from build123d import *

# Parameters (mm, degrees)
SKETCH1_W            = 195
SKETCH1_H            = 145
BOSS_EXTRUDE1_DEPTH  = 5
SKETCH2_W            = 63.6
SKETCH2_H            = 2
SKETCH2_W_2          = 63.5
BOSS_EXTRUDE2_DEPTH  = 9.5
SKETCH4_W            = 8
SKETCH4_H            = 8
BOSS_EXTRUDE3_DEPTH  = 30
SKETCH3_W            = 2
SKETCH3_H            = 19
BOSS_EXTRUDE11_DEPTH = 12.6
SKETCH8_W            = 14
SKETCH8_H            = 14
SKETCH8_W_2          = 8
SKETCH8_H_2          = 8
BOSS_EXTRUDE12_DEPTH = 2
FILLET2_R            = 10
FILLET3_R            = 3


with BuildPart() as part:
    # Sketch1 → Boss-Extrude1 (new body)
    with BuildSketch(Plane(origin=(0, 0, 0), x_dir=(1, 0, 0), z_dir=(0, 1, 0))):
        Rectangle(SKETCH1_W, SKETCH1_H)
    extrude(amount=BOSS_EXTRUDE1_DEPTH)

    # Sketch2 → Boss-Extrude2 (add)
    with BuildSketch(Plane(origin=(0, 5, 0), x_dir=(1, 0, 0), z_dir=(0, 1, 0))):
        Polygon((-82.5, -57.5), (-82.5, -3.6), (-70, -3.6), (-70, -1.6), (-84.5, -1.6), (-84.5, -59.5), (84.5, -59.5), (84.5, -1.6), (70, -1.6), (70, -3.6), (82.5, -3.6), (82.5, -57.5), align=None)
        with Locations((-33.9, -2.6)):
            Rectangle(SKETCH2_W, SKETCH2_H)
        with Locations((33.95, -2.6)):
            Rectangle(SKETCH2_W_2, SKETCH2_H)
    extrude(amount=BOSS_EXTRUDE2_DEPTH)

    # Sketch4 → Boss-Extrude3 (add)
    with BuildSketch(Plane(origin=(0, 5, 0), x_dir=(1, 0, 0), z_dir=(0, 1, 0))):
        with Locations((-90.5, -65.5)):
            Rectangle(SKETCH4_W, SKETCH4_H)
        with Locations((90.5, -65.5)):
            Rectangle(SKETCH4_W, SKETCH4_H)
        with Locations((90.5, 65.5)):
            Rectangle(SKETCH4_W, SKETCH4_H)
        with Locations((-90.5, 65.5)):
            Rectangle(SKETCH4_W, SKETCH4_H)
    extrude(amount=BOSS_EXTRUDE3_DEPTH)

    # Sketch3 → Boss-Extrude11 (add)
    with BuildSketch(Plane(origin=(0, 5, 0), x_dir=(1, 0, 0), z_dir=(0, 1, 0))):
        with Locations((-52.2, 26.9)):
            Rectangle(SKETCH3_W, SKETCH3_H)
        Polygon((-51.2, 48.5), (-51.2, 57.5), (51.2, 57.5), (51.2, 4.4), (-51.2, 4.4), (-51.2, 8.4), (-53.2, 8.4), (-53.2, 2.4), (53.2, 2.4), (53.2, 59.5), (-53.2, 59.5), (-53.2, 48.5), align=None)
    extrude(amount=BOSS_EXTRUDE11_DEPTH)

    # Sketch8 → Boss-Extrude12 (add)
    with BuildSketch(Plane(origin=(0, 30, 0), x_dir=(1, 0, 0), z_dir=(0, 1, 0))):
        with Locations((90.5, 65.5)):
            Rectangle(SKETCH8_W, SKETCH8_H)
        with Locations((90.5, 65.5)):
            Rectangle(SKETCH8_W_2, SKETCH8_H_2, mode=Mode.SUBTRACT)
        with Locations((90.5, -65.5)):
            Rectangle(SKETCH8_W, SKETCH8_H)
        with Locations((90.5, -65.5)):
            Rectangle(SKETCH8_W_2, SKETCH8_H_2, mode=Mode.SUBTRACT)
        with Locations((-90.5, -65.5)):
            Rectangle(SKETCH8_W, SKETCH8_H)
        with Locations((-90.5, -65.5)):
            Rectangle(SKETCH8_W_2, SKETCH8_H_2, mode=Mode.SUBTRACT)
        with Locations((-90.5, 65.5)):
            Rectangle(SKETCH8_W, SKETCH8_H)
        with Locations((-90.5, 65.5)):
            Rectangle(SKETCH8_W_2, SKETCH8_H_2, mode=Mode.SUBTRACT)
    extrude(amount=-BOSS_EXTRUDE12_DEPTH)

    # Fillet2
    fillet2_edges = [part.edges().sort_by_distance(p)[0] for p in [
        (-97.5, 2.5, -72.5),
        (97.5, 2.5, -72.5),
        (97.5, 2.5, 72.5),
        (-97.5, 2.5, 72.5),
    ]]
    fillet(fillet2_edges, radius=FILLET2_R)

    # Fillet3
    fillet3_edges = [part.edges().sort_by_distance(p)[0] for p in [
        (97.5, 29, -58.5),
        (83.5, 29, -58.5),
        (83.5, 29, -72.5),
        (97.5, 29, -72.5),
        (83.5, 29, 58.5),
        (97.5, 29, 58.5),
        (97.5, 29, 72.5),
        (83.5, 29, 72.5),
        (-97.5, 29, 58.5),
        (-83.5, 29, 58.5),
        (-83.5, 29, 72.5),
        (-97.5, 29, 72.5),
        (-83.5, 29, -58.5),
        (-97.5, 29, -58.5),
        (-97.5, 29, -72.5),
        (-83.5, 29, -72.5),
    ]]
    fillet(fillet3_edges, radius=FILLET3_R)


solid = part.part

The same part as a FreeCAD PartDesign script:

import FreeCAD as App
import Part
import Sketcher
from FreeCAD import Vector
Q = App.Units.Quantity


def edges_at(feature, points):
    """Names of the edges that pass closest to the given points."""
    edges = feature.Shape.Edges
    near = lambda p: min(range(len(edges)), key=lambda i: edges[i].distToShape(Part.Vertex(*p))[0])
    return sorted({f"Edge{near(p) + 1}" for p in points})

doc = App.newDocument("Part")
body = doc.addObject("PartDesign::Body", "Body")

sketch1 = body.newObject("Sketcher::SketchObject", "Sketch")
sketch1.AttachmentSupport = (doc.getObject("XZ_Plane"), [""])
sketch1.MapMode = "FlatFace"
sketch1.addGeometry(Part.LineSegment(Vector(-98, -72, 0), Vector(-98, 72, 0)), False)
sketch1.addGeometry(Part.LineSegment(Vector(-98, 72, 0), Vector(98, 72, 0)), False)
sketch1.addGeometry(Part.LineSegment(Vector(98, 72, 0), Vector(98, -72, 0)), False)
sketch1.addGeometry(Part.LineSegment(Vector(98, -72, 0), Vector(-98, -72, 0)), False)
sketch1.addConstraint(Sketcher.Constraint("Coincident", 0, 2, 1, 1))
sketch1.addConstraint(Sketcher.Constraint("Coincident", 1, 2, 2, 1))
sketch1.addConstraint(Sketcher.Constraint("Coincident", 2, 2, 3, 1))
sketch1.addConstraint(Sketcher.Constraint("Coincident", 3, 2, 0, 1))
sketch1.addConstraint(Sketcher.Constraint("Vertical", 0))
sketch1.addConstraint(Sketcher.Constraint("Horizontal", 1))
sketch1.addConstraint(Sketcher.Constraint("Vertical", 2))
sketch1.addConstraint(Sketcher.Constraint("Horizontal", 3))
sketch1.addConstraint(Sketcher.Constraint("Symmetric", 0, 2, 2, 2, -1, 1))
sketch1.addConstraint(Sketcher.Constraint("DistanceX", 1, 1, 1, 2, Q("195 mm")))
sketch1.addConstraint(Sketcher.Constraint("DistanceY", 0, 1, 0, 2, Q("145 mm")))
pad1 = body.newObject("PartDesign::Pad", "Pad")
pad1.Profile = sketch1
pad1.Length = 5
pad1.Reversed = True

sketch2 = body.newObject("Sketcher::SketchObject", "Sketch001")
sketch2.AttachmentSupport = (doc.getObject("XZ_Plane"), [""])
sketch2.MapMode = "FlatFace"
sketch2.AttachmentOffset = App.Placement(Vector(0, 0, -5), App.Rotation())
sketch2.addGeometry(Part.LineSegment(Vector(-82.5, 57.5, 0), Vector(-82.5, 3.6, 0)), False)
sketch2.addGeometry(Part.LineSegment(Vector(-82.5, 3.6, 0), Vector(-70, 3.6, 0)), False)
sketch2.addGeometry(Part.LineSegment(Vector(-70, 3.6, 0), Vector(-70, 1.6, 0)), False)
sketch2.addGeometry(Part.LineSegment(Vector(-70, 1.6, 0), Vector(-84.5, 1.6, 0)), False)
sketch2.addGeometry(Part.LineSegment(Vector(-84.5, 1.6, 0), Vector(-84.5, 59.5, 0)), False)
sketch2.addGeometry(Part.LineSegment(Vector(-84.5, 59.5, 0), Vector(84.5, 59.5, 0)), False)
sketch2.addGeometry(Part.LineSegment(Vector(84.5, 59.5, 0), Vector(84.5, 1.6, 0)), False)
sketch2.addGeometry(Part.LineSegment(Vector(84.5, 1.6, 0), Vector(70, 1.6, 0)), False)
sketch2.addGeometry(Part.LineSegment(Vector(70, 1.6, 0), Vector(70, 3.6, 0)), False)
sketch2.addGeometry(Part.LineSegment(Vector(70, 3.6, 0), Vector(82.5, 3.6, 0)), False)
sketch2.addGeometry(Part.LineSegment(Vector(82.5, 3.6, 0), Vector(82.5, 57.5, 0)), False)
sketch2.addGeometry(Part.LineSegment(Vector(82.5, 57.5, 0), Vector(-82.5, 57.5, 0)), False)
sketch2.addGeometry(Part.LineSegment(Vector(-65.7, 1.6, 0), Vector(-65.7, 3.6, 0)), False)
sketch2.addGeometry(Part.LineSegment(Vector(-65.7, 3.6, 0), Vector(-2.1, 3.6, 0)), False)
sketch2.addGeometry(Part.LineSegment(Vector(-2.1, 3.6, 0), Vector(-2.1, 1.6, 0)), False)
sketch2.addGeometry(Part.LineSegment(Vector(-2.1, 1.6, 0), Vector(-65.7, 1.6, 0)), False)
sketch2.addGeometry(Part.LineSegment(Vector(2.2, 1.6, 0), Vector(2.2, 3.6, 0)), False)
sketch2.addGeometry(Part.LineSegment(Vector(2.2, 3.6, 0), Vector(65.7, 3.6, 0)), False)
sketch2.addGeometry(Part.LineSegment(Vector(65.7, 3.6, 0), Vector(65.7, 1.6, 0)), False)
sketch2.addGeometry(Part.LineSegment(Vector(65.7, 1.6, 0), Vector(2.2, 1.6, 0)), False)
sketch2.addConstraint(Sketcher.Constraint("Coincident", 0, 2, 1, 1))
sketch2.addConstraint(Sketcher.Constraint("Coincident", 1, 2, 2, 1))
sketch2.addConstraint(Sketcher.Constraint("Coincident", 2, 2, 3, 1))
sketch2.addConstraint(Sketcher.Constraint("Coincident", 3, 2, 4, 1))
sketch2.addConstraint(Sketcher.Constraint("Coincident", 4, 2, 5, 1))
sketch2.addConstraint(Sketcher.Constraint("Coincident", 5, 2, 6, 1))
sketch2.addConstraint(Sketcher.Constraint("Coincident", 6, 2, 7, 1))
sketch2.addConstraint(Sketcher.Constraint("Coincident", 7, 2, 8, 1))
sketch2.addConstraint(Sketcher.Constraint("Coincident", 8, 2, 9, 1))
sketch2.addConstraint(Sketcher.Constraint("Coincident", 9, 2, 10, 1))
sketch2.addConstraint(Sketcher.Constraint("Coincident", 10, 2, 11, 1))
sketch2.addConstraint(Sketcher.Constraint("Coincident", 11, 2, 0, 1))
sketch2.addConstraint(Sketcher.Constraint("Coincident", 12, 2, 13, 1))
sketch2.addConstraint(Sketcher.Constraint("Coincident", 13, 2, 14, 1))
sketch2.addConstraint(Sketcher.Constraint("Coincident", 14, 2, 15, 1))
sketch2.addConstraint(Sketcher.Constraint("Coincident", 15, 2, 12, 1))
sketch2.addConstraint(Sketcher.Constraint("Coincident", 16, 2, 17, 1))
sketch2.addConstraint(Sketcher.Constraint("Coincident", 17, 2, 18, 1))
sketch2.addConstraint(Sketcher.Constraint("Coincident", 18, 2, 19, 1))
sketch2.addConstraint(Sketcher.Constraint("Coincident", 19, 2, 16, 1))
sketch2.addConstraint(Sketcher.Constraint("Vertical", 0))
sketch2.addConstraint(Sketcher.Constraint("Horizontal", 1))
sketch2.addConstraint(Sketcher.Constraint("Vertical", 2))
sketch2.addConstraint(Sketcher.Constraint("Horizontal", 3))
sketch2.addConstraint(Sketcher.Constraint("Vertical", 4))
sketch2.addConstraint(Sketcher.Constraint("Horizontal", 5))
sketch2.addConstraint(Sketcher.Constraint("Vertical", 6))
sketch2.addConstraint(Sketcher.Constraint("Horizontal", 7))
sketch2.addConstraint(Sketcher.Constraint("Vertical", 8))
sketch2.addConstraint(Sketcher.Constraint("Horizontal", 9))
sketch2.addConstraint(Sketcher.Constraint("Vertical", 10))
sketch2.addConstraint(Sketcher.Constraint("Horizontal", 11))
sketch2.addConstraint(Sketcher.Constraint("Vertical", 12))
sketch2.addConstraint(Sketcher.Constraint("Horizontal", 13))
sketch2.addConstraint(Sketcher.Constraint("Vertical", 14))
sketch2.addConstraint(Sketcher.Constraint("Horizontal", 15))
sketch2.addConstraint(Sketcher.Constraint("Vertical", 16))
sketch2.addConstraint(Sketcher.Constraint("Horizontal", 17))
sketch2.addConstraint(Sketcher.Constraint("Vertical", 18))
sketch2.addConstraint(Sketcher.Constraint("Horizontal", 19))
sketch2.addConstraint(Sketcher.Constraint("Symmetric", 3, 2, 6, 2, -2))
sketch2.addConstraint(Sketcher.Constraint("Symmetric", 1, 2, 8, 2, -2))
sketch2.addConstraint(Sketcher.Constraint("Symmetric", 12, 2, 17, 2, -2))
sketch2.addConstraint(Sketcher.Constraint("Horizontal", 9, 2, 12, 2))
sketch2.addConstraint(Sketcher.Constraint("Horizontal", 7, 2, 14, 2))
sketch2.addConstraint(Sketcher.Constraint("Horizontal", 15, 2, 18, 2))
sketch2.addConstraint(Sketcher.Constraint("Equal", 1, 9))
sketch2.addConstraint(Sketcher.Constraint("DistanceX", 5, 1, 5, 2, Q("169 mm")))
sketch2.addConstraint(Sketcher.Constraint("DistanceX", 11, 2, 11, 1, Q("165 mm")))
sketch2.addConstraint(Sketcher.Constraint("DistanceY", 2, 2, 2, 1, Q("2 mm")))
sketch2.addConstraint(Sketcher.Constraint("DistanceX", 1, 1, 1, 2, Q("12.5 mm")))
sketch2.addConstraint(Sketcher.Constraint("DistanceX", 13, 1, 13, 2, Q("63.6 mm")))
sketch2.addConstraint(Sketcher.Constraint("DistanceX", 17, 1, 17, 2, Q("63.5 mm")))
sketch2.addConstraint(Sketcher.Constraint("DistanceY", 0, 2, 0, 1, Q("53.9 mm")))
sketch2.addConstraint(Sketcher.Constraint("DistanceY", 4, 1, 4, 2, Q("57.9 mm")))
sketch2.addConstraint(Sketcher.Constraint("DistanceY", -1, 1, 0, 2, Q("3.6 mm")))
sketch2.addConstraint(Sketcher.Constraint("DistanceX", 12, 2, -1, 1, Q("65.7 mm")))
pad2 = body.newObject("PartDesign::Pad", "Pad001")
pad2.Profile = sketch2
pad2.Length = 9.5
pad2.Reversed = True

sketch3 = body.newObject("Sketcher::SketchObject", "Sketch002")
sketch3.AttachmentSupport = (doc.getObject("XZ_Plane"), [""])
sketch3.MapMode = "FlatFace"
sketch3.AttachmentOffset = App.Placement(Vector(0, 0, -5), App.Rotation())
sketch3.addGeometry(Part.LineSegment(Vector(-94, 62, 0), Vector(-94, 70, 0)), False)
sketch3.addGeometry(Part.LineSegment(Vector(-94, 70, 0), Vector(-86, 70, 0)), False)
sketch3.addGeometry(Part.LineSegment(Vector(-86, 70, 0), Vector(-86, 62, 0)), False)
sketch3.addGeometry(Part.LineSegment(Vector(-86, 62, 0), Vector(-94, 62, 0)), False)
sketch3.addGeometry(Part.LineSegment(Vector(86, 62, 0), Vector(86, 70, 0)), False)
sketch3.addGeometry(Part.LineSegment(Vector(86, 70, 0), Vector(94, 70, 0)), False)
sketch3.addGeometry(Part.LineSegment(Vector(94, 70, 0), Vector(94, 62, 0)), False)
sketch3.addGeometry(Part.LineSegment(Vector(94, 62, 0), Vector(86, 62, 0)), False)
sketch3.addGeometry(Part.LineSegment(Vector(86, -70, 0), Vector(86, -62, 0)), False)
sketch3.addGeometry(Part.LineSegment(Vector(86, -62, 0), Vector(94, -62, 0)), False)
sketch3.addGeometry(Part.LineSegment(Vector(94, -62, 0), Vector(94, -70, 0)), False)
sketch3.addGeometry(Part.LineSegment(Vector(94, -70, 0), Vector(86, -70, 0)), False)
sketch3.addGeometry(Part.LineSegment(Vector(-94, -70, 0), Vector(-94, -62, 0)), False)
sketch3.addGeometry(Part.LineSegment(Vector(-94, -62, 0), Vector(-86, -62, 0)), False)
sketch3.addGeometry(Part.LineSegment(Vector(-86, -62, 0), Vector(-86, -70, 0)), False)
sketch3.addGeometry(Part.LineSegment(Vector(-86, -70, 0), Vector(-94, -70, 0)), False)
sketch3.addConstraint(Sketcher.Constraint("Coincident", 0, 2, 1, 1))
sketch3.addConstraint(Sketcher.Constraint("Coincident", 1, 2, 2, 1))
sketch3.addConstraint(Sketcher.Constraint("Coincident", 2, 2, 3, 1))
sketch3.addConstraint(Sketcher.Constraint("Coincident", 3, 2, 0, 1))
sketch3.addConstraint(Sketcher.Constraint("Coincident", 4, 2, 5, 1))
sketch3.addConstraint(Sketcher.Constraint("Coincident", 5, 2, 6, 1))
sketch3.addConstraint(Sketcher.Constraint("Coincident", 6, 2, 7, 1))
sketch3.addConstraint(Sketcher.Constraint("Coincident", 7, 2, 4, 1))
sketch3.addConstraint(Sketcher.Constraint("Coincident", 8, 2, 9, 1))
sketch3.addConstraint(Sketcher.Constraint("Coincident", 9, 2, 10, 1))
sketch3.addConstraint(Sketcher.Constraint("Coincident", 10, 2, 11, 1))
sketch3.addConstraint(Sketcher.Constraint("Coincident", 11, 2, 8, 1))
sketch3.addConstraint(Sketcher.Constraint("Coincident", 12, 2, 13, 1))
sketch3.addConstraint(Sketcher.Constraint("Coincident", 13, 2, 14, 1))
sketch3.addConstraint(Sketcher.Constraint("Coincident", 14, 2, 15, 1))
sketch3.addConstraint(Sketcher.Constraint("Coincident", 15, 2, 12, 1))
sketch3.addConstraint(Sketcher.Constraint("Vertical", 0))
sketch3.addConstraint(Sketcher.Constraint("Horizontal", 1))
sketch3.addConstraint(Sketcher.Constraint("Vertical", 2))
sketch3.addConstraint(Sketcher.Constraint("Horizontal", 3))
sketch3.addConstraint(Sketcher.Constraint("Vertical", 4))
sketch3.addConstraint(Sketcher.Constraint("Horizontal", 5))
sketch3.addConstraint(Sketcher.Constraint("Vertical", 6))
sketch3.addConstraint(Sketcher.Constraint("Horizontal", 7))
sketch3.addConstraint(Sketcher.Constraint("Vertical", 8))
sketch3.addConstraint(Sketcher.Constraint("Horizontal", 9))
sketch3.addConstraint(Sketcher.Constraint("Vertical", 10))
sketch3.addConstraint(Sketcher.Constraint("Horizontal", 11))
sketch3.addConstraint(Sketcher.Constraint("Vertical", 12))
sketch3.addConstraint(Sketcher.Constraint("Horizontal", 13))
sketch3.addConstraint(Sketcher.Constraint("Vertical", 14))
sketch3.addConstraint(Sketcher.Constraint("Horizontal", 15))
sketch3.addConstraint(Sketcher.Constraint("Symmetric", 2, 2, 8, 2, -1, 1))
sketch3.addConstraint(Sketcher.Constraint("Symmetric", 0, 2, 10, 2, -1, 1))
sketch3.addConstraint(Sketcher.Constraint("Symmetric", 6, 2, 12, 2, -1, 1))
sketch3.addConstraint(Sketcher.Constraint("Symmetric", 4, 2, 14, 2, -1, 1))
sketch3.addConstraint(Sketcher.Constraint("Symmetric", 1, 2, 4, 2, -2))
sketch3.addConstraint(Sketcher.Constraint("Symmetric", 3, 2, 6, 2, -2))
sketch3.addConstraint(Sketcher.Constraint("Equal", 15, 0))
sketch3.addConstraint(Sketcher.Constraint("DistanceX", 1, 1, 1, 2, Q("8 mm")))
sketch3.addConstraint(Sketcher.Constraint("DistanceX", 1, 2, 4, 2, Q("173 mm")))
sketch3.addConstraint(Sketcher.Constraint("DistanceY", 8, 2, 7, 2, Q("123 mm")))
pad3 = body.newObject("PartDesign::Pad", "Pad002")
pad3.Profile = sketch3
pad3.Length = 30
pad3.Reversed = True

sketch4 = body.newObject("Sketcher::SketchObject", "Sketch003")
sketch4.AttachmentSupport = (doc.getObject("XZ_Plane"), [""])
sketch4.MapMode = "FlatFace"
sketch4.AttachmentOffset = App.Placement(Vector(0, 0, -5), App.Rotation())
sketch4.addGeometry(Part.LineSegment(Vector(-53.2, -36.4, 0), Vector(-53.2, -17.4, 0)), False)
sketch4.addGeometry(Part.LineSegment(Vector(-53.2, -17.4, 0), Vector(-51.2, -17.4, 0)), False)
sketch4.addGeometry(Part.LineSegment(Vector(-51.2, -17.4, 0), Vector(-51.2, -36.4, 0)), False)
sketch4.addGeometry(Part.LineSegment(Vector(-51.2, -36.4, 0), Vector(-53.2, -36.4, 0)), False)
sketch4.addGeometry(Part.LineSegment(Vector(-51.2, -48.5, 0), Vector(-51.2, -57.5, 0)), False)
sketch4.addGeometry(Part.LineSegment(Vector(-51.2, -57.5, 0), Vector(51.2, -57.5, 0)), False)
sketch4.addGeometry(Part.LineSegment(Vector(51.2, -57.5, 0), Vector(51.2, -4.4, 0)), False)
sketch4.addGeometry(Part.LineSegment(Vector(51.2, -4.4, 0), Vector(-51.2, -4.4, 0)), False)
sketch4.addGeometry(Part.LineSegment(Vector(-51.2, -4.4, 0), Vector(-51.2, -8.4, 0)), False)
sketch4.addGeometry(Part.LineSegment(Vector(-51.2, -8.4, 0), Vector(-53.2, -8.4, 0)), False)
sketch4.addGeometry(Part.LineSegment(Vector(-53.2, -8.4, 0), Vector(-53.2, -2.4, 0)), False)
sketch4.addGeometry(Part.LineSegment(Vector(-53.2, -2.4, 0), Vector(53.2, -2.4, 0)), False)
sketch4.addGeometry(Part.LineSegment(Vector(53.2, -2.4, 0), Vector(53.2, -59.5, 0)), False)
sketch4.addGeometry(Part.LineSegment(Vector(53.2, -59.5, 0), Vector(-53.2, -59.5, 0)), False)
sketch4.addGeometry(Part.LineSegment(Vector(-53.2, -59.5, 0), Vector(-53.2, -48.5, 0)), False)
sketch4.addGeometry(Part.LineSegment(Vector(-53.2, -48.5, 0), Vector(-51.2, -48.5, 0)), False)
sketch4.addConstraint(Sketcher.Constraint("Coincident", 0, 2, 1, 1))
sketch4.addConstraint(Sketcher.Constraint("Coincident", 1, 2, 2, 1))
sketch4.addConstraint(Sketcher.Constraint("Coincident", 2, 2, 3, 1))
sketch4.addConstraint(Sketcher.Constraint("Coincident", 3, 2, 0, 1))
sketch4.addConstraint(Sketcher.Constraint("Coincident", 4, 2, 5, 1))
sketch4.addConstraint(Sketcher.Constraint("Coincident", 5, 2, 6, 1))
sketch4.addConstraint(Sketcher.Constraint("Coincident", 6, 2, 7, 1))
sketch4.addConstraint(Sketcher.Constraint("Coincident", 7, 2, 8, 1))
sketch4.addConstraint(Sketcher.Constraint("Coincident", 8, 2, 9, 1))
sketch4.addConstraint(Sketcher.Constraint("Coincident", 9, 2, 10, 1))
sketch4.addConstraint(Sketcher.Constraint("Coincident", 10, 2, 11, 1))
sketch4.addConstraint(Sketcher.Constraint("Coincident", 11, 2, 12, 1))
sketch4.addConstraint(Sketcher.Constraint("Coincident", 12, 2, 13, 1))
sketch4.addConstraint(Sketcher.Constraint("Coincident", 13, 2, 14, 1))
sketch4.addConstraint(Sketcher.Constraint("Coincident", 14, 2, 15, 1))
sketch4.addConstraint(Sketcher.Constraint("Coincident", 15, 2, 4, 1))
sketch4.addConstraint(Sketcher.Constraint("Vertical", 0))
sketch4.addConstraint(Sketcher.Constraint("Horizontal", 1))
sketch4.addConstraint(Sketcher.Constraint("Vertical", 2))
sketch4.addConstraint(Sketcher.Constraint("Horizontal", 3))
sketch4.addConstraint(Sketcher.Constraint("Vertical", 4))
sketch4.addConstraint(Sketcher.Constraint("Horizontal", 5))
sketch4.addConstraint(Sketcher.Constraint("Vertical", 6))
sketch4.addConstraint(Sketcher.Constraint("Horizontal", 7))
sketch4.addConstraint(Sketcher.Constraint("Vertical", 8))
sketch4.addConstraint(Sketcher.Constraint("Horizontal", 9))
sketch4.addConstraint(Sketcher.Constraint("Vertical", 10))
sketch4.addConstraint(Sketcher.Constraint("Horizontal", 11))
sketch4.addConstraint(Sketcher.Constraint("Vertical", 12))
sketch4.addConstraint(Sketcher.Constraint("Horizontal", 13))
sketch4.addConstraint(Sketcher.Constraint("Vertical", 14))
sketch4.addConstraint(Sketcher.Constraint("Horizontal", 15))
sketch4.addConstraint(Sketcher.Constraint("Vertical", 2, 2, 4, 2))
sketch4.addConstraint(Sketcher.Constraint("Vertical", 4, 2, 7, 2))
sketch4.addConstraint(Sketcher.Constraint("Vertical", 3, 2, 9, 2))
sketch4.addConstraint(Sketcher.Constraint("Vertical", 10, 2, 13, 2))
sketch4.addConstraint(Sketcher.Constraint("DistanceX", 1, 1, 1, 2, Q("2 mm")))
sketch4.addConstraint(Sketcher.Constraint("DistanceY", 0, 1, 0, 2, Q("19 mm")))
sketch4.addConstraint(Sketcher.Constraint("DistanceY", 4, 2, 4, 1, Q("9 mm")))
sketch4.addConstraint(Sketcher.Constraint("DistanceY", 8, 2, 8, 1, Q("4 mm")))
sketch4.addConstraint(Sketcher.Constraint("DistanceY", 10, 1, 10, 2, Q("6 mm")))
sketch4.addConstraint(Sketcher.Constraint("DistanceY", 14, 1, 14, 2, Q("11 mm")))
sketch4.addConstraint(Sketcher.Constraint("DistanceX", 5, 1, 5, 2, Q("102.4 mm")))
sketch4.addConstraint(Sketcher.Constraint("DistanceX", 11, 1, 11, 2, Q("106.4 mm")))
sketch4.addConstraint(Sketcher.Constraint("DistanceY", 6, 1, 6, 2, Q("53.1 mm")))
sketch4.addConstraint(Sketcher.Constraint("DistanceY", 1, 2, 6, 2, Q("13 mm")))
sketch4.addConstraint(Sketcher.Constraint("DistanceX", 0, 2, -1, 1, Q("53.2 mm")))
sketch4.addConstraint(Sketcher.Constraint("DistanceY", 0, 2, -1, 1, Q("17.4 mm")))
pad4 = body.newObject("PartDesign::Pad", "Pad003")
pad4.Profile = sketch4
pad4.Length = 12.6
pad4.Reversed = True

sketch5 = body.newObject("Sketcher::SketchObject", "Sketch004")
sketch5.AttachmentSupport = (doc.getObject("XZ_Plane"), [""])
sketch5.MapMode = "FlatFace"
sketch5.AttachmentOffset = App.Placement(Vector(0, 0, -30), App.Rotation())
sketch5.addGeometry(Part.LineSegment(Vector(84, -72, 0), Vector(84, -58, 0)), False)
sketch5.addGeometry(Part.LineSegment(Vector(84, -58, 0), Vector(98, -58, 0)), False)
sketch5.addGeometry(Part.LineSegment(Vector(98, -58, 0), Vector(98, -72, 0)), False)
sketch5.addGeometry(Part.LineSegment(Vector(98, -72, 0), Vector(84, -72, 0)), False)
sketch5.addGeometry(Part.LineSegment(Vector(94, -62, 0), Vector(86, -62, 0)), False)
sketch5.addGeometry(Part.LineSegment(Vector(86, -62, 0), Vector(86, -70, 0)), False)
sketch5.addGeometry(Part.LineSegment(Vector(86, -70, 0), Vector(94, -70, 0)), False)
sketch5.addGeometry(Part.LineSegment(Vector(94, -70, 0), Vector(94, -62, 0)), False)
sketch5.addGeometry(Part.LineSegment(Vector(84, 58, 0), Vector(84, 72, 0)), False)
sketch5.addGeometry(Part.LineSegment(Vector(84, 72, 0), Vector(98, 72, 0)), False)
sketch5.addGeometry(Part.LineSegment(Vector(98, 72, 0), Vector(98, 58, 0)), False)
sketch5.addGeometry(Part.LineSegment(Vector(98, 58, 0), Vector(84, 58, 0)), False)
sketch5.addGeometry(Part.LineSegment(Vector(94, 70, 0), Vector(86, 70, 0)), False)
sketch5.addGeometry(Part.LineSegment(Vector(86, 70, 0), Vector(86, 62, 0)), False)
sketch5.addGeometry(Part.LineSegment(Vector(86, 62, 0), Vector(94, 62, 0)), False)
sketch5.addGeometry(Part.LineSegment(Vector(94, 62, 0), Vector(94, 70, 0)), False)
sketch5.addGeometry(Part.LineSegment(Vector(-98, 58, 0), Vector(-98, 72, 0)), False)
sketch5.addGeometry(Part.LineSegment(Vector(-98, 72, 0), Vector(-84, 72, 0)), False)
sketch5.addGeometry(Part.LineSegment(Vector(-84, 72, 0), Vector(-84, 58, 0)), False)
sketch5.addGeometry(Part.LineSegment(Vector(-84, 58, 0), Vector(-98, 58, 0)), False)
sketch5.addGeometry(Part.LineSegment(Vector(-86, 70, 0), Vector(-94, 70, 0)), False)
sketch5.addGeometry(Part.LineSegment(Vector(-94, 70, 0), Vector(-94, 62, 0)), False)
sketch5.addGeometry(Part.LineSegment(Vector(-94, 62, 0), Vector(-86, 62, 0)), False)
sketch5.addGeometry(Part.LineSegment(Vector(-86, 62, 0), Vector(-86, 70, 0)), False)
sketch5.addGeometry(Part.LineSegment(Vector(-98, -72, 0), Vector(-98, -58, 0)), False)
sketch5.addGeometry(Part.LineSegment(Vector(-98, -58, 0), Vector(-84, -58, 0)), False)
sketch5.addGeometry(Part.LineSegment(Vector(-84, -58, 0), Vector(-84, -72, 0)), False)
sketch5.addGeometry(Part.LineSegment(Vector(-84, -72, 0), Vector(-98, -72, 0)), False)
sketch5.addGeometry(Part.LineSegment(Vector(-86, -62, 0), Vector(-94, -62, 0)), False)
sketch5.addGeometry(Part.LineSegment(Vector(-94, -62, 0), Vector(-94, -70, 0)), False)
sketch5.addGeometry(Part.LineSegment(Vector(-94, -70, 0), Vector(-86, -70, 0)), False)
sketch5.addGeometry(Part.LineSegment(Vector(-86, -70, 0), Vector(-86, -62, 0)), False)
sketch5.addConstraint(Sketcher.Constraint("Coincident", 0, 2, 1, 1))
sketch5.addConstraint(Sketcher.Constraint("Coincident", 1, 2, 2, 1))
sketch5.addConstraint(Sketcher.Constraint("Coincident", 2, 2, 3, 1))
sketch5.addConstraint(Sketcher.Constraint("Coincident", 3, 2, 0, 1))
sketch5.addConstraint(Sketcher.Constraint("Coincident", 4, 2, 5, 1))
sketch5.addConstraint(Sketcher.Constraint("Coincident", 5, 2, 6, 1))
sketch5.addConstraint(Sketcher.Constraint("Coincident", 6, 2, 7, 1))
sketch5.addConstraint(Sketcher.Constraint("Coincident", 7, 2, 4, 1))
sketch5.addConstraint(Sketcher.Constraint("Coincident", 8, 2, 9, 1))
sketch5.addConstraint(Sketcher.Constraint("Coincident", 9, 2, 10, 1))
sketch5.addConstraint(Sketcher.Constraint("Coincident", 10, 2, 11, 1))
sketch5.addConstraint(Sketcher.Constraint("Coincident", 11, 2, 8, 1))
sketch5.addConstraint(Sketcher.Constraint("Coincident", 12, 2, 13, 1))
sketch5.addConstraint(Sketcher.Constraint("Coincident", 13, 2, 14, 1))
sketch5.addConstraint(Sketcher.Constraint("Coincident", 14, 2, 15, 1))
sketch5.addConstraint(Sketcher.Constraint("Coincident", 15, 2, 12, 1))
sketch5.addConstraint(Sketcher.Constraint("Coincident", 16, 2, 17, 1))
sketch5.addConstraint(Sketcher.Constraint("Coincident", 17, 2, 18, 1))
sketch5.addConstraint(Sketcher.Constraint("Coincident", 18, 2, 19, 1))
sketch5.addConstraint(Sketcher.Constraint("Coincident", 19, 2, 16, 1))
sketch5.addConstraint(Sketcher.Constraint("Coincident", 20, 2, 21, 1))
sketch5.addConstraint(Sketcher.Constraint("Coincident", 21, 2, 22, 1))
sketch5.addConstraint(Sketcher.Constraint("Coincident", 22, 2, 23, 1))
sketch5.addConstraint(Sketcher.Constraint("Coincident", 23, 2, 20, 1))
sketch5.addConstraint(Sketcher.Constraint("Coincident", 24, 2, 25, 1))
sketch5.addConstraint(Sketcher.Constraint("Coincident", 25, 2, 26, 1))
sketch5.addConstraint(Sketcher.Constraint("Coincident", 26, 2, 27, 1))
sketch5.addConstraint(Sketcher.Constraint("Coincident", 27, 2, 24, 1))
sketch5.addConstraint(Sketcher.Constraint("Coincident", 28, 2, 29, 1))
sketch5.addConstraint(Sketcher.Constraint("Coincident", 29, 2, 30, 1))
sketch5.addConstraint(Sketcher.Constraint("Coincident", 30, 2, 31, 1))
sketch5.addConstraint(Sketcher.Constraint("Coincident", 31, 2, 28, 1))
sketch5.addConstraint(Sketcher.Constraint("Vertical", 0))
sketch5.addConstraint(Sketcher.Constraint("Horizontal", 1))
sketch5.addConstraint(Sketcher.Constraint("Vertical", 2))
sketch5.addConstraint(Sketcher.Constraint("Horizontal", 3))
sketch5.addConstraint(Sketcher.Constraint("Horizontal", 4))
sketch5.addConstraint(Sketcher.Constraint("Vertical", 5))
sketch5.addConstraint(Sketcher.Constraint("Horizontal", 6))
sketch5.addConstraint(Sketcher.Constraint("Vertical", 7))
sketch5.addConstraint(Sketcher.Constraint("Vertical", 8))
sketch5.addConstraint(Sketcher.Constraint("Horizontal", 9))
sketch5.addConstraint(Sketcher.Constraint("Vertical", 10))
sketch5.addConstraint(Sketcher.Constraint("Horizontal", 11))
sketch5.addConstraint(Sketcher.Constraint("Horizontal", 12))
sketch5.addConstraint(Sketcher.Constraint("Vertical", 13))
sketch5.addConstraint(Sketcher.Constraint("Horizontal", 14))
sketch5.addConstraint(Sketcher.Constraint("Vertical", 15))
sketch5.addConstraint(Sketcher.Constraint("Vertical", 16))
sketch5.addConstraint(Sketcher.Constraint("Horizontal", 17))
sketch5.addConstraint(Sketcher.Constraint("Vertical", 18))
sketch5.addConstraint(Sketcher.Constraint("Horizontal", 19))
sketch5.addConstraint(Sketcher.Constraint("Horizontal", 20))
sketch5.addConstraint(Sketcher.Constraint("Vertical", 21))
sketch5.addConstraint(Sketcher.Constraint("Horizontal", 22))
sketch5.addConstraint(Sketcher.Constraint("Vertical", 23))
sketch5.addConstraint(Sketcher.Constraint("Vertical", 24))
sketch5.addConstraint(Sketcher.Constraint("Horizontal", 25))
sketch5.addConstraint(Sketcher.Constraint("Vertical", 26))
sketch5.addConstraint(Sketcher.Constraint("Horizontal", 27))
sketch5.addConstraint(Sketcher.Constraint("Horizontal", 28))
sketch5.addConstraint(Sketcher.Constraint("Vertical", 29))
sketch5.addConstraint(Sketcher.Constraint("Horizontal", 30))
sketch5.addConstraint(Sketcher.Constraint("Vertical", 31))
sketch5.addConstraint(Sketcher.Constraint("Symmetric", 2, 2, 16, 2, -1, 1))
sketch5.addConstraint(Sketcher.Constraint("Symmetric", 0, 2, 18, 2, -1, 1))
sketch5.addConstraint(Sketcher.Constraint("Symmetric", 6, 2, 20, 2, -1, 1))
sketch5.addConstraint(Sketcher.Constraint("Symmetric", 4, 2, 22, 2, -1, 1))
sketch5.addConstraint(Sketcher.Constraint("Symmetric", 10, 2, 24, 2, -1, 1))
sketch5.addConstraint(Sketcher.Constraint("Symmetric", 8, 2, 26, 2, -1, 1))
sketch5.addConstraint(Sketcher.Constraint("Symmetric", 14, 2, 28, 2, -1, 1))
sketch5.addConstraint(Sketcher.Constraint("Symmetric", 12, 2, 30, 2, -1, 1))
sketch5.addConstraint(Sketcher.Constraint("Symmetric", 9, 2, 16, 2, -2))
sketch5.addConstraint(Sketcher.Constraint("Symmetric", 11, 2, 18, 2, -2))
sketch5.addConstraint(Sketcher.Constraint("Symmetric", 15, 2, 20, 2, -2))
sketch5.addConstraint(Sketcher.Constraint("Symmetric", 13, 2, 22, 2, -2))
sketch5.addConstraint(Sketcher.Constraint("Equal", 27, 0))
sketch5.addConstraint(Sketcher.Constraint("Equal", 30, 5))
sketch5.addConstraint(Sketcher.Constraint("DistanceX", 1, 1, 1, 2, Q("14 mm")))
sketch5.addConstraint(Sketcher.Constraint("DistanceX", 4, 2, 4, 1, Q("8 mm")))
sketch5.addConstraint(Sketcher.Constraint("DistanceX", 0, 2, 4, 2, Q("3 mm")))
sketch5.addConstraint(Sketcher.Constraint("DistanceY", 4, 2, 0, 2, Q("3 mm")))
sketch5.addConstraint(Sketcher.Constraint("DistanceY", 0, 2, 8, 2, Q("131 mm")))
sketch5.addConstraint(Sketcher.Constraint("DistanceX", 16, 2, 8, 2, Q("181 mm")))
pad5 = body.newObject("PartDesign::Pad", "Pad004")
pad5.Profile = sketch5
pad5.Length = 2
doc.recompute()

fillet = body.newObject("PartDesign::Fillet", "Fillet")
fillet.Base = (pad5, edges_at(pad5, [
    (-97.5, 2.5, -72.5),
    (97.5, 2.5, -72.5),
    (97.5, 2.5, 72.5),
    (-97.5, 2.5, 72.5),
]))
fillet.Radius = 10
doc.recompute()

fillet2 = body.newObject("PartDesign::Fillet", "Fillet001")
fillet2.Base = (fillet, edges_at(fillet, [
    (97.5, 29, -58.5),
    (83.5, 29, -58.5),
    (83.5, 29, -72.5),
    (97.5, 29, -72.5),
    (83.5, 29, 58.5),
    (97.5, 29, 58.5),
    (97.5, 29, 72.5),
    (83.5, 29, 72.5),
    (-97.5, 29, 58.5),
    (-83.5, 29, 58.5),
    (-83.5, 29, 72.5),
    (-97.5, 29, 72.5),
    (-83.5, 29, -58.5),
    (-97.5, 29, -58.5),
    (-97.5, 29, -72.5),
    (-83.5, 29, -72.5),
]))
fillet2.Radius = 3

doc.recompute()
